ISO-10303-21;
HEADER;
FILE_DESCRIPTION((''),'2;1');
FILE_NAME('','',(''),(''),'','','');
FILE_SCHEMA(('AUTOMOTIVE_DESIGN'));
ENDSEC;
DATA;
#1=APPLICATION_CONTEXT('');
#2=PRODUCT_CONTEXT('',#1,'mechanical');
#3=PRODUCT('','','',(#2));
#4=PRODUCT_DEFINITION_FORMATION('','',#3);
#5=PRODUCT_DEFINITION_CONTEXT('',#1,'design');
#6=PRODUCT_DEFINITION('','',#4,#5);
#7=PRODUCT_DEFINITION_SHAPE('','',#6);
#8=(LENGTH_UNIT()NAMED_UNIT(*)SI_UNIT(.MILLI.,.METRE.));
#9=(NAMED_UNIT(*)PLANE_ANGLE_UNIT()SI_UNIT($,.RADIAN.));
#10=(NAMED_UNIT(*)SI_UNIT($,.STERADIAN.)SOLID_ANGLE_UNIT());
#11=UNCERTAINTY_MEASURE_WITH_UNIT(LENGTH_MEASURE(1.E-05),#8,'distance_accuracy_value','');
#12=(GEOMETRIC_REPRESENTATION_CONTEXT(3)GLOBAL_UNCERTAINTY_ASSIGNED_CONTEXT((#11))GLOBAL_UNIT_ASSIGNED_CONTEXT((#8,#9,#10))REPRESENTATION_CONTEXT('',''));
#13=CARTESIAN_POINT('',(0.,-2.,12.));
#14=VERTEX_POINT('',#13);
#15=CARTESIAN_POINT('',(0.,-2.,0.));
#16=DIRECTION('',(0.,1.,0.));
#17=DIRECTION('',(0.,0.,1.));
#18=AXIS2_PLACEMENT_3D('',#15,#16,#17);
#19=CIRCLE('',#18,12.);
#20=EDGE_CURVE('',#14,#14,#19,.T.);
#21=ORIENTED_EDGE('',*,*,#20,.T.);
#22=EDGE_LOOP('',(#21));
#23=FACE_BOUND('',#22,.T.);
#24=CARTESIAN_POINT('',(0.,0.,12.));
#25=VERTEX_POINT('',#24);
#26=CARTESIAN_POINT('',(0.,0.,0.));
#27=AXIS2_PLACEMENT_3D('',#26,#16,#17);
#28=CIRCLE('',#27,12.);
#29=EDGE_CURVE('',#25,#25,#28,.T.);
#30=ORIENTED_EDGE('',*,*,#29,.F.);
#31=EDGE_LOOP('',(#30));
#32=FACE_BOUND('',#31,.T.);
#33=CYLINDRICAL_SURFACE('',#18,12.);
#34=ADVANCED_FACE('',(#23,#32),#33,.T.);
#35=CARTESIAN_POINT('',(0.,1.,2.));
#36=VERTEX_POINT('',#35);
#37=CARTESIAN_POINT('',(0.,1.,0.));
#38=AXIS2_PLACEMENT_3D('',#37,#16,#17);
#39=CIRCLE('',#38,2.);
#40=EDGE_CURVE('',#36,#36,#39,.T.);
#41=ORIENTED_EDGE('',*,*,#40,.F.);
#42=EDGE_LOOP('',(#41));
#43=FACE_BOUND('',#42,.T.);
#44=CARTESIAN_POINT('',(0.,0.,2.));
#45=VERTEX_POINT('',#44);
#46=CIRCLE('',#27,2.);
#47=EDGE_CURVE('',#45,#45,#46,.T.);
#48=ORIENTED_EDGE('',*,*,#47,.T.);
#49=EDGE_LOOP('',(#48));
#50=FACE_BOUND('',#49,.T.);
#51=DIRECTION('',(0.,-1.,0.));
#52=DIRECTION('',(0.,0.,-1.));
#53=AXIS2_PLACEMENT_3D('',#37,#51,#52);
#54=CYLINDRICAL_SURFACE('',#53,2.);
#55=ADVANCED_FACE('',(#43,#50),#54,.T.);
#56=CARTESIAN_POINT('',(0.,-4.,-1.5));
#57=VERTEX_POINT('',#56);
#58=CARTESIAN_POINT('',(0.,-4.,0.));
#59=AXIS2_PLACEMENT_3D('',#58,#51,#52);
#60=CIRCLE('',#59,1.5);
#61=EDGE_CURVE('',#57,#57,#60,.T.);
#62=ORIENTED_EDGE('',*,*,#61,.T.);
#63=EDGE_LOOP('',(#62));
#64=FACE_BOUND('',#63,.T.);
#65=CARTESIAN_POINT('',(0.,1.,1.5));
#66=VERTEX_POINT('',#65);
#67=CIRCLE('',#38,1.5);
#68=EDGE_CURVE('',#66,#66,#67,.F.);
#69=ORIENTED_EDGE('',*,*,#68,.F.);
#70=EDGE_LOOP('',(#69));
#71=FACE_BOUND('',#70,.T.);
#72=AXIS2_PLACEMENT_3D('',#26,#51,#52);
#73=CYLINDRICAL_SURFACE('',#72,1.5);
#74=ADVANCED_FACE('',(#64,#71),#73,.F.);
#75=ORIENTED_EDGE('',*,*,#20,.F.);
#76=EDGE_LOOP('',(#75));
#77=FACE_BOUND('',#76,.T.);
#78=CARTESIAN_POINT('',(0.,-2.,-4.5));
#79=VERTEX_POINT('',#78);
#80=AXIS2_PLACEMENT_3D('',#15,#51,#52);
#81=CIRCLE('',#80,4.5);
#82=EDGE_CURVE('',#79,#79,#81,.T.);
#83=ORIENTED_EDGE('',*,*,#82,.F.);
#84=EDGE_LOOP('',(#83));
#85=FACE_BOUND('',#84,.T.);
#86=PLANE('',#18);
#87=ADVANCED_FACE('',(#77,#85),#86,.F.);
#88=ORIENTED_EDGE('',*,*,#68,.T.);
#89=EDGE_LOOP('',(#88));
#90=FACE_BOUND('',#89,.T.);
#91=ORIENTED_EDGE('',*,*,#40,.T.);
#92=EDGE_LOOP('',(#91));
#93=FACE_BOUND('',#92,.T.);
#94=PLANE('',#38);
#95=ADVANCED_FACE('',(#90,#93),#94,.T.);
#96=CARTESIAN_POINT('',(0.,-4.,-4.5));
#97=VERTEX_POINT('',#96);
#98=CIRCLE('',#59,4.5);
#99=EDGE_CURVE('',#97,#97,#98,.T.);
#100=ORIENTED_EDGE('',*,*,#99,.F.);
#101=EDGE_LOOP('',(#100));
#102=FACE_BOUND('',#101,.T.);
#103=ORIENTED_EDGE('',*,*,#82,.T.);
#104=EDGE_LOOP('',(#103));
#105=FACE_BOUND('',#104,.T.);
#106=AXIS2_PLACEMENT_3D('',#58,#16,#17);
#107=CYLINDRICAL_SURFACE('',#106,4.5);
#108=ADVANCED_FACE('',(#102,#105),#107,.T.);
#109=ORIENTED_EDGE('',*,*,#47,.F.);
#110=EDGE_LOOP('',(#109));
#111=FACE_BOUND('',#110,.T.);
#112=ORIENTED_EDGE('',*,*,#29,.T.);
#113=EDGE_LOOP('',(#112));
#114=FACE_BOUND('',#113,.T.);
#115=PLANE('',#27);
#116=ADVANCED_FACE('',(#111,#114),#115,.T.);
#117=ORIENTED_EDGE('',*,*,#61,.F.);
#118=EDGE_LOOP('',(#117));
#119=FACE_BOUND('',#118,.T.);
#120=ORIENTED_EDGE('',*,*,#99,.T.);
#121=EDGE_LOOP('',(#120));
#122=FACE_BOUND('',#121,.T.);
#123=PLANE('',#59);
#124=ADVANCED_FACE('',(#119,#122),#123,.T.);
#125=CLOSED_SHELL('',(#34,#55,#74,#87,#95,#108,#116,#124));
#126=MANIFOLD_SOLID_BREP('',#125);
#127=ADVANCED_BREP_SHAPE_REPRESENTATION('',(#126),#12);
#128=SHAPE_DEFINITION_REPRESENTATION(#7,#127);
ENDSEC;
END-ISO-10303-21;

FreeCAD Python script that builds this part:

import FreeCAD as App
import Part
import Sketcher

doc = App.newDocument("Part")
body = doc.addObject("PartDesign::Body", "Body")

sketch1 = body.newObject("Sketcher::SketchObject", "Sketch")
sketch1.AttachmentSupport = (doc.getObject("XZ_Plane"), [""])
sketch1.MapMode = "FlatFace"
sketch1.addGeometry(Part.Circle(App.Vector(0, 0, 0), App.Vector(0, 0, 1), 12), False)
sketch1.addConstraint(Sketcher.Constraint("Coincident", 0, 3, -1, 1))
sketch1.addConstraint(Sketcher.Constraint("Diameter", 0, 24.0))
pad1 = body.newObject("PartDesign::Pad", "Pad")
pad1.Profile = sketch1
pad1.Length = 2

sketch2 = body.newObject("Sketcher::SketchObject", "Sketch001")
sketch2.AttachmentSupport = (doc.getObject("XZ_Plane"), [""])
sketch2.MapMode = "FlatFace"
sketch2.AttachmentOffset = App.Placement(App.Vector(0, 0, 2), App.Rotation())
sketch2.addGeometry(Part.Circle(App.Vector(0, 0, 0), App.Vector(0, 0, 1), 4.5), False)
sketch2.addConstraint(Sketcher.Constraint("Coincident", 0, 3, -1, 1))
sketch2.addConstraint(Sketcher.Constraint("Diameter", 0, 9.0))
pad2 = body.newObject("PartDesign::Pad", "Pad001")
pad2.Profile = sketch2
pad2.Length = 2

sketch3 = body.newObject("Sketcher::SketchObject", "Sketch002")
sketch3.AttachmentSupport = (doc.getObject("XZ_Plane"), [""])
sketch3.MapMode = "FlatFace"
sketch3.AttachmentOffset = App.Placement(App.Vector(0, 0, 4), App.Rotation())
sketch3.addGeometry(Part.Circle(App.Vector(0, 0, 0), App.Vector(0, 0, 1), 1.5), False)
sketch3.addConstraint(Sketcher.Constraint("Coincident", 0, 3, -1, 1))
sketch3.addConstraint(Sketcher.Constraint("Diameter", 0, 3.0))
pocket1 = body.newObject("PartDesign::Pocket", "Pocket")
pocket1.Profile = sketch3
pocket1.Type = "ThroughAll"

sketch4 = body.newObject("Sketcher::SketchObject", "Sketch003")
sketch4.AttachmentSupport = (doc.getObject("XZ_Plane"), [""])
sketch4.MapMode = "FlatFace"
sketch4.addGeometry(Part.Circle(App.Vector(0, 0, 0), App.Vector(0, 0, 1), 2), False)
sketch4.addGeometry(Part.Circle(App.Vector(0, 0, 0), App.Vector(0, 0, 1), 1.5), False)
sketch4.addConstraint(Sketcher.Constraint("Coincident", 0, 3, -1, 1))
sketch4.addConstraint(Sketcher.Constraint("Coincident", 1, 3, -1, 1))
sketch4.addConstraint(Sketcher.Constraint("Diameter", 0, 4.0))
sketch4.addConstraint(Sketcher.Constraint("Diameter", 1, 3.0))
pad3 = body.newObject("PartDesign::Pad", "Pad002")
pad3.Profile = sketch4
pad3.Length = 1
pad3.Reversed = True

doc.recompute()
